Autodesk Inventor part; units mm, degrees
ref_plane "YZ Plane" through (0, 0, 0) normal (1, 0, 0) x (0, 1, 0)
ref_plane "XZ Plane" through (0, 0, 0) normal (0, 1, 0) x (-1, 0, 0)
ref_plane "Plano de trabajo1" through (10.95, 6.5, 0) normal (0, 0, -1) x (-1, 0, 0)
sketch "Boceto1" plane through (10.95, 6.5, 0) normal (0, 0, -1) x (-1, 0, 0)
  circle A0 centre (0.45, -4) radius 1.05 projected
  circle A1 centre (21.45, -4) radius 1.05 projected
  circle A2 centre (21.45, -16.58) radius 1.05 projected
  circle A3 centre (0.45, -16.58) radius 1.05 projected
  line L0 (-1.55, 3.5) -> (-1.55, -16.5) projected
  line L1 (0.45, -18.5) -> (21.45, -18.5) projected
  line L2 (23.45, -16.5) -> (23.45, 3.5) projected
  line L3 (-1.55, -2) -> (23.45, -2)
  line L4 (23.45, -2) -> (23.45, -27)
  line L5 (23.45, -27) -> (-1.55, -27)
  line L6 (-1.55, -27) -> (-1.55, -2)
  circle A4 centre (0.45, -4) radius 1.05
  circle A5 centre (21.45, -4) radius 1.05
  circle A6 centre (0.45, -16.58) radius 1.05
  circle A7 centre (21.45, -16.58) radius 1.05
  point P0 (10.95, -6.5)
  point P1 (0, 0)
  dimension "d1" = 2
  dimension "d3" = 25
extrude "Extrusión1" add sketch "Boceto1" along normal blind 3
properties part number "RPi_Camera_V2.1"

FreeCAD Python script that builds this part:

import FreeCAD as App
import Part
import Sketcher

V = App.Vector
Q = App.Units.Quantity


def add_polygon(sketch, points):
    """Adds a closed chain of lines whose ends are joined by coincident constraints."""
    first, n = sketch.GeometryCount, len(points)
    for a, b in zip(points, points[1:] + points[:1]):
        sketch.addGeometry(Part.LineSegment(App.Vector(*a, 0), App.Vector(*b, 0)), False)
    for i in range(n):
        sketch.addConstraint(Sketcher.Constraint("Coincident", first + i, 2, first + (i + 1) % n, 1))

doc = App.newDocument("Part")
body = doc.addObject("PartDesign::Body", "Body")

sketch1 = doc.addObject("Sketcher::SketchObject", "Sketch")
body.addObject(sketch1)
sketch1.AttachmentSupport = (doc.XY_Plane, [""])
sketch1.MapMode = "FlatFace"
add_polygon(sketch1, [(-12.5, 4.5), (12.5, 4.5), (12.5, -20.5), (-12.5, -20.5)])
sketch1.addGeometry(Part.Circle(V(10.5, -10.1, 0), V(0, 0, 1), 1.1), False)
sketch1.addGeometry(Part.Circle(V(-10.5, -10.1, 0), V(0, 0, 1), 1.1), False)
sketch1.addGeometry(Part.Circle(V(10.5, 2.5, 0), V(0, 0, 1), 1.1), False)
sketch1.addGeometry(Part.Circle(V(-10.5, 2.5, 0), V(0, 0, 1), 1.1), False)
sketch1.addConstraint(Sketcher.Constraint("Horizontal", 0))
sketch1.addConstraint(Sketcher.Constraint("Vertical", 1))
sketch1.addConstraint(Sketcher.Constraint("Horizontal", 2))
sketch1.addConstraint(Sketcher.Constraint("Vertical", 3))
sketch1.addConstraint(Sketcher.Constraint("Equal", 4, 5))
sketch1.addConstraint(Sketcher.Constraint("Equal", 5, 6))
sketch1.addConstraint(Sketcher.Constraint("Equal", 6, 7))
sketch1.addConstraint(Sketcher.Constraint("Symmetric", 4, 3, 5, 3, -2))
sketch1.addConstraint(Sketcher.Constraint("Symmetric", 6, 3, 7, 3, -2))
sketch1.addConstraint(Sketcher.Constraint("Vertical", 4, 3, 6, 3))
sketch1.addConstraint(Sketcher.Constraint("Equal", 2, 1))
sketch1.addConstraint(Sketcher.Constraint("DistanceX", 0, 1, 0, 2, Q("25 mm")))
sketch1.addConstraint(Sketcher.Constraint("DistanceX", 6, 3, 0, 2, Q("2 mm")))
sketch1.addConstraint(Sketcher.Constraint("DistanceY", 6, 3, 0, 2, Q("2 mm")))
sketch1.addConstraint(Sketcher.Constraint("DistanceX", 2, 2, 5, 3, Q("2 mm")))
sketch1.addConstraint(Sketcher.Constraint("Diameter", 4, Q("2.1 mm")))
sketch1.addConstraint(Sketcher.Constraint("DistanceY", -1, 1, 6, 3, Q("2.5 mm")))
sketch1.addConstraint(Sketcher.Constraint("DistanceY", 4, 3, -1, 1, Q("10.08 mm")))
pad1 = doc.addObject("PartDesign::Pad", "Pad")
body.addObject(pad1)
pad1.Profile = sketch1
pad1.Length = 3
pad1.Reversed = True

doc.recompute()
